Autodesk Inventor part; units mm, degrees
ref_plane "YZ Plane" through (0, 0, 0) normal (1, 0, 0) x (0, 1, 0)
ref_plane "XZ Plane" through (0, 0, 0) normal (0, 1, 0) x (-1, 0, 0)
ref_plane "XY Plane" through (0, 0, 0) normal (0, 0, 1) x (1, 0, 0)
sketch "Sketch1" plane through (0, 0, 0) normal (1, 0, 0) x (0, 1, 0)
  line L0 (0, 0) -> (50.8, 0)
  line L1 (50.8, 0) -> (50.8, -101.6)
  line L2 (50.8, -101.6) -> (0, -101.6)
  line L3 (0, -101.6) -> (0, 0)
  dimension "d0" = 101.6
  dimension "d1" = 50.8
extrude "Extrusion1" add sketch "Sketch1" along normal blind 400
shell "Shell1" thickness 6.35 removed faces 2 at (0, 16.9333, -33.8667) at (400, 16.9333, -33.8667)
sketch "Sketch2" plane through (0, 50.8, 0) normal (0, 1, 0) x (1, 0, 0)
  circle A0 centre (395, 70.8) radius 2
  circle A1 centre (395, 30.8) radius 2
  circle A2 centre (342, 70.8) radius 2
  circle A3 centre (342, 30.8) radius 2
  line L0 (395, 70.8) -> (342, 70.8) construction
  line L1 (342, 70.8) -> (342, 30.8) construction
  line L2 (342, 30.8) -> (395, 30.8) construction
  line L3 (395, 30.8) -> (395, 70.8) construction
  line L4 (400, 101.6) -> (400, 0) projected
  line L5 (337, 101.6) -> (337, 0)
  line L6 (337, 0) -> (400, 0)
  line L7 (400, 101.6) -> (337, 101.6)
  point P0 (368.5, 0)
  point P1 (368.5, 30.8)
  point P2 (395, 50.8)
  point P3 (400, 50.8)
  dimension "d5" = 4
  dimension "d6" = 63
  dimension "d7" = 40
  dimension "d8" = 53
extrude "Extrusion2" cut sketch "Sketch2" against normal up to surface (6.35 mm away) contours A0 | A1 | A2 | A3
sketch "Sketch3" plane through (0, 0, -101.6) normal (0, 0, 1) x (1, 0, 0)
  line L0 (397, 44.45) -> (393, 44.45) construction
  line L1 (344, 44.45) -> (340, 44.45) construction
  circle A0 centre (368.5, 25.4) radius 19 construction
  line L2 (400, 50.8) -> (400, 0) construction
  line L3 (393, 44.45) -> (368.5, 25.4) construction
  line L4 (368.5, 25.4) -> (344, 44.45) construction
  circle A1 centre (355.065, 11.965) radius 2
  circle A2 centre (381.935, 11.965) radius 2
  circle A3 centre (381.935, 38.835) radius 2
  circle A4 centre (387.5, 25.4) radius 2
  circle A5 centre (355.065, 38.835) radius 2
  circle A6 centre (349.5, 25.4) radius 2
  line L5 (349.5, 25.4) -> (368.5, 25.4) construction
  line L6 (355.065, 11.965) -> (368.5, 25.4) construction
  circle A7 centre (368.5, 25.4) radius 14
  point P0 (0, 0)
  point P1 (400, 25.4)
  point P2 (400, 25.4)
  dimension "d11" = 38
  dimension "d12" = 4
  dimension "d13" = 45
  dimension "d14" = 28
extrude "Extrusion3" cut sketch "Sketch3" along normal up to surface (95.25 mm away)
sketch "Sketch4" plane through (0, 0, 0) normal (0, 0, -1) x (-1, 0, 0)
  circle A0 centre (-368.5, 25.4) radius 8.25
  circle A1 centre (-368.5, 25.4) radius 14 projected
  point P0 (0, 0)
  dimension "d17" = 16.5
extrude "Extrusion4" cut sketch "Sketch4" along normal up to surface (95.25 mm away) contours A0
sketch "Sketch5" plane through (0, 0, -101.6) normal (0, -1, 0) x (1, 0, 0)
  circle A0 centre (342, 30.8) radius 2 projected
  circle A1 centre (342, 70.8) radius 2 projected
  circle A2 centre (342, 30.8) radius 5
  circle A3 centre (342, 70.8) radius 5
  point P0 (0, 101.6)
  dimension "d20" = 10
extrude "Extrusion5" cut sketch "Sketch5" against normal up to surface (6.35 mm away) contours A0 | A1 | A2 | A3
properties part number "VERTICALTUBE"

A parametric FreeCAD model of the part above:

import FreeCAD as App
import Part
import Sketcher
from FreeCAD import Vector
Q = App.Units.Quantity


def faces_at(feature, points):
    """Names of the faces that lie closest to the given points."""
    faces = feature.Shape.Faces
    near = lambda p: min(range(len(faces)), key=lambda i: faces[i].distToShape(Part.Vertex(*p))[0])
    return sorted({f"Face{near(p) + 1}" for p in points})


def add_polygon(sketch, points):
    """Adds a closed chain of lines whose ends are joined by coincident constraints."""
    first, n = sketch.GeometryCount, len(points)
    for a, b in zip(points, points[1:] + points[:1]):
        sketch.addGeometry(Part.LineSegment(App.Vector(*a, 0), App.Vector(*b, 0)), False)
    for i in range(n):
        sketch.addConstraint(Sketcher.Constraint("Coincident", first + i, 2, first + (i + 1) % n, 1))

doc = App.newDocument("Part")
body = doc.addObject("PartDesign::Body", "Body")

sketch1 = body.newObject("Sketcher::SketchObject", "Sketch")
sketch1.AttachmentSupport = (doc.getObject("YZ_Plane"), [""])
sketch1.MapMode = "FlatFace"
add_polygon(sketch1, [(51, 0), (0, 0), (0, -102), (51, -102)])
sketch1.addConstraint([
    Sketcher.Constraint("Horizontal", 0),
    Sketcher.Constraint("Vertical", 1),
    Sketcher.Constraint("Horizontal", 2),
    Sketcher.Constraint("Vertical", 3),
    Sketcher.Constraint("Coincident", 0, 2, -1, 1),
    Sketcher.Constraint("DistanceX", 0, 2, 0, 1, Q("2 in")),
    Sketcher.Constraint("DistanceY", 1, 2, 1, 1, Q("4 in")),
])
pad1 = body.newObject("PartDesign::Pad", "Pad")
pad1.Profile = sketch1
pad1.Length = 400
doc.recompute()

thickness = body.newObject("PartDesign::Thickness", "Thickness")
thickness.Base = (pad1, faces_at(pad1, [(0, 16.933, -33.867), (400, 16.933, -33.867)]))
thickness.Value = Q("0.25 in")
thickness.Reversed = True
thickness.Join = "Intersection"

sketch2 = body.newObject("Sketcher::SketchObject", "Sketch001")
sketch2.AttachmentSupport = (doc.getObject("XZ_Plane"), [""])
sketch2.MapMode = "FlatFace"
sketch2.AttachmentOffset = App.Placement(Vector(0, 0, -2 * 25.4), App.Rotation())
sketch2.addGeometry([
    Part.Circle(Vector(395, -70.8, 0), Vector(0, 0, 1), 2),
    Part.Circle(Vector(395, -30.8, 0), Vector(0, 0, 1), 2),
    Part.Circle(Vector(342, -70.8, 0), Vector(0, 0, 1), 2),
    Part.Circle(Vector(342, -30.8, 0), Vector(0, 0, 1), 2),
], False)
sketch2.addConstraint([
    Sketcher.Constraint("Equal", 0, 1),
    Sketcher.Constraint("Equal", 1, 2),
    Sketcher.Constraint("Equal", 2, 3),
    Sketcher.Constraint("Horizontal", 0, 3, 2, 3),
    Sketcher.Constraint("Horizontal", 1, 3, 3, 3),
    Sketcher.Constraint("Vertical", 0, 3, 1, 3),
    Sketcher.Constraint("Vertical", 2, 3, 3, 3),
    Sketcher.Constraint("Diameter", 0, Q("4 mm")),
    Sketcher.Constraint("DistanceY", 0, 3, 1, 3, Q("1.5748 in")),
    Sketcher.Constraint("DistanceX", 2, 3, 0, 3, Q("53 mm")),
    Sketcher.Constraint("DistanceY", 0, 3, -1, 1, Q("2.7874 in")),
    Sketcher.Constraint("DistanceX", -1, 1, 0, 3, Q("395 mm")),
])
pocket1 = body.newObject("PartDesign::Pocket", "Pocket")
pocket1.Profile = sketch2
pocket1.Length = Q("0.25 in")
pocket1.Reversed = True

sketch3 = body.newObject("Sketcher::SketchObject", "Sketch002")
sketch3.AttachmentSupport = (doc.getObject("XY_Plane"), [""])
sketch3.MapMode = "FlatFace"
sketch3.AttachmentOffset = App.Placement(Vector(0, 0, -4 * 25.4), App.Rotation())
sketch3.addGeometry([
    Part.Circle(Vector(355.1, 12, 0), Vector(0, 0, 1), 2),
    Part.Circle(Vector(381.9, 12, 0), Vector(0, 0, 1), 2),
    Part.Circle(Vector(381.9, 38.8, 0), Vector(0, 0, 1), 2),
    Part.Circle(Vector(387.5, 25.4, 0), Vector(0, 0, 1), 2),
    Part.Circle(Vector(355.1, 38.8, 0), Vector(0, 0, 1), 2),
    Part.Circle(Vector(349.5, 25.4, 0), Vector(0, 0, 1), 2),
    Part.Circle(Vector(368.5, 25.4, 0), Vector(0, 0, 1), 14),
], False)
sketch3.addConstraint([
    Sketcher.Constraint("Equal", 0, 1),
    Sketcher.Constraint("Equal", 1, 2),
    Sketcher.Constraint("Equal", 2, 3),
    Sketcher.Constraint("Equal", 3, 4),
    Sketcher.Constraint("Equal", 4, 5),
    Sketcher.Constraint("Horizontal", 0, 3, 1, 3),
    Sketcher.Constraint("Horizontal", 2, 3, 4, 3),
    Sketcher.Constraint("Horizontal", 3, 3, 5, 3),
    Sketcher.Constraint("Horizontal", 5, 3, 6, 3),
    Sketcher.Constraint("Vertical", 1, 3, 2, 3),
    Sketcher.Constraint("Vertical", 0, 3, 4, 3),
    Sketcher.Constraint("Diameter", 0, Q("4 mm")),
    Sketcher.Constraint("Diameter", 6, Q("28 mm")),
    Sketcher.Constraint("DistanceY", -1, 1, 3, 3, Q("1 in")),
    Sketcher.Constraint("DistanceX", 5, 3, 3, 3, Q("38 mm")),
    Sketcher.Constraint("DistanceX", -1, 1, 1, 3, Q("15.0368 in")),
    Sketcher.Constraint("DistanceX", -1, 1, 3, 3, Q("15.2559 in")),
    Sketcher.Constraint("DistanceX", 5, 3, 0, 3, Q("0.2191 in")),
    Sketcher.Constraint("DistanceY", -1, 1, 0, 3, Q("11.965 mm")),
    Sketcher.Constraint("DistanceY", -1, 1, 2, 3, Q("38.835 mm")),
    Sketcher.Constraint("DistanceX", -1, 1, 6, 3, Q("368.5 mm")),
])
pocket2 = body.newObject("PartDesign::Pocket", "Pocket001")
pocket2.Profile = sketch3
pocket2.Length = Q("3.75 in")
pocket2.Reversed = True

sketch4 = body.newObject("Sketcher::SketchObject", "Sketch003")
sketch4.AttachmentSupport = (doc.getObject("XY_Plane"), [""])
sketch4.MapMode = "FlatFace"
sketch4.addGeometry(Part.Circle(Vector(368, 25, 0), Vector(0, 0, 1), 8), False)
sketch4.addConstraint([
    Sketcher.Constraint("Diameter", 0, Q("0.6496 in")),
    Sketcher.Constraint("DistanceY", -1, 1, 0, 3, Q("1 in")),
    Sketcher.Constraint("DistanceX", -1, 1, 0, 3, Q("368.5 mm")),
])
pocket3 = body.newObject("PartDesign::Pocket", "Pocket002")
pocket3.Profile = sketch4
pocket3.Length = Q("3.75 in")

sketch5 = body.newObject("Sketcher::SketchObject", "Sketch004")
sketch5.AttachmentSupport = (doc.getObject("XZ_Plane"), [""])
sketch5.MapMode = "FlatFace"
sketch5.addGeometry([
    Part.Circle(Vector(342, -71, 0), Vector(0, 0, 1), 5),
    Part.Circle(Vector(342, -31, 0), Vector(0, 0, 1), 5),
], False)
sketch5.addConstraint([
    Sketcher.Constraint("Equal", 0, 1),
    Sketcher.Constraint("Vertical", 0, 3, 1, 3),
    Sketcher.Constraint("Diameter", 0, Q("0.3937 in")),
    Sketcher.Constraint("DistanceY", 0, 3, -1, 1, Q("2.7874 in")),
    Sketcher.Constraint("DistanceY", 1, 3, -1, 1, Q("1.2126 in")),
    Sketcher.Constraint("DistanceX", -1, 1, 0, 3, Q("342 mm")),
])
pocket4 = body.newObject("PartDesign::Pocket", "Pocket003")
pocket4.Profile = sketch5
pocket4.Length = Q("0.25 in")

doc.recompute()
